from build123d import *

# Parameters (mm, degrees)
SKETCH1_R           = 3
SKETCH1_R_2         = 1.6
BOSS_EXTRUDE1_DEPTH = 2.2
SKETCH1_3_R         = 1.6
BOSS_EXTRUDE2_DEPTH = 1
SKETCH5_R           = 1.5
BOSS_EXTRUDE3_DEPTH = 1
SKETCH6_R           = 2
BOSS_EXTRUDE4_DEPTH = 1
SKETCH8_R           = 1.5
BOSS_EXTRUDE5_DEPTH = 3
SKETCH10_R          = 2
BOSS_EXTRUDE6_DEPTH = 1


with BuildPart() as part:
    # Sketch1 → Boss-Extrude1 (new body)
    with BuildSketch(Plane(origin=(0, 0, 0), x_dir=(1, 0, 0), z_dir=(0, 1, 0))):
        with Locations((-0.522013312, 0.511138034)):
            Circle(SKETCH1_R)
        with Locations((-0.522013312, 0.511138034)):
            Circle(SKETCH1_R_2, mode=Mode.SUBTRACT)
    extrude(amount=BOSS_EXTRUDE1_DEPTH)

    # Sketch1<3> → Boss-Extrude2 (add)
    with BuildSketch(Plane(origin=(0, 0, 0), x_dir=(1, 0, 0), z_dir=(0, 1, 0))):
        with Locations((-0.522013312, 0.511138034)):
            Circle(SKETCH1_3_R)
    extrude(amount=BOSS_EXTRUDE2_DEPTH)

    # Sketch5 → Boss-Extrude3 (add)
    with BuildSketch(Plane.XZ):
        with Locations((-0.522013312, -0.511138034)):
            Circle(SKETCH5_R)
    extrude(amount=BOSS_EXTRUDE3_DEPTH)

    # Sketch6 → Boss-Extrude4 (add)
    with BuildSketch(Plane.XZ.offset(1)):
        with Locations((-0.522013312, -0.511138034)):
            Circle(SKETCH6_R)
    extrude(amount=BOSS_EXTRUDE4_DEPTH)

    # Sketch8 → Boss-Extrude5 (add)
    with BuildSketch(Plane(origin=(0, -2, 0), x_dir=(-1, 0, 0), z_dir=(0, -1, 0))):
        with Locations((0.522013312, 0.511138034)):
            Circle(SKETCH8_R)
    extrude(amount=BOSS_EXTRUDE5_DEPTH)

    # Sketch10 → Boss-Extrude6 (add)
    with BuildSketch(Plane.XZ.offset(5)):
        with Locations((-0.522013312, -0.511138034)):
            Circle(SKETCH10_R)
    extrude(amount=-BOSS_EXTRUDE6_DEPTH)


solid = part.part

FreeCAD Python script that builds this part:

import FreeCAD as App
import Part
import Sketcher

doc = App.newDocument("Part")
body = doc.addObject("PartDesign::Body", "Body")

sketch1 = body.newObject("Sketcher::SketchObject", "Sketch")
sketch1.AttachmentSupport = (doc.getObject("XZ_Plane"), [""])
sketch1.MapMode = "FlatFace"
sketch1.addGeometry([
    Part.Circle(App.Vector(-0.5, -0.5, 0), App.Vector(0, 0, 1), 3),
    Part.Circle(App.Vector(-0.5, -0.5, 0), App.Vector(0, 0, 1), 1.6),
], False)
sketch1.addConstraint([
    Sketcher.Constraint("Coincident", 1, 3, 0, 3),
    Sketcher.Constraint("Diameter", 0, 6.0),
    Sketcher.Constraint("Diameter", 1, 3.2),
    Sketcher.Constraint("DistanceY", 0, 3, -1, 1, 0.511138),
    Sketcher.Constraint("DistanceX", 0, 3, -1, 1, 0.522013),
])
pad1 = body.newObject("PartDesign::Pad", "Pad")
pad1.Profile = sketch1
pad1.Length = 2.2
pad1.Reversed = True

sketch2 = body.newObject("Sketcher::SketchObject", "Sketch001")
sketch2.AttachmentSupport = (doc.getObject("XZ_Plane"), [""])
sketch2.MapMode = "FlatFace"
sketch2.addGeometry(Part.Circle(App.Vector(-0.5, -0.5, 0), App.Vector(0, 0, 1), 1.6), False)
sketch2.addConstraint([
    Sketcher.Constraint("Diameter", 0, 3.2),
    Sketcher.Constraint("DistanceY", 0, 3, -1, 1, 0.511138),
    Sketcher.Constraint("DistanceX", 0, 3, -1, 1, 0.522013),
])
pad2 = body.newObject("PartDesign::Pad", "Pad001")
pad2.Profile = sketch2
pad2.Length = 1
pad2.Reversed = True

sketch3 = body.newObject("Sketcher::SketchObject", "Sketch002")
sketch3.AttachmentSupport = (doc.getObject("XZ_Plane"), [""])
sketch3.MapMode = "FlatFace"
sketch3.addGeometry(Part.Circle(App.Vector(-0.5, -0.5, 0), App.Vector(0, 0, 1), 1.5), False)
sketch3.addConstraint([
    Sketcher.Constraint("Diameter", 0, 3.0),
    Sketcher.Constraint("DistanceY", 0, 3, -1, 1, 0.511138),
    Sketcher.Constraint("DistanceX", 0, 3, -1, 1, 0.522013),
])
pad3 = body.newObject("PartDesign::Pad", "Pad002")
pad3.Profile = sketch3
pad3.Length = 1

sketch4 = body.newObject("Sketcher::SketchObject", "Sketch003")
sketch4.AttachmentSupport = (doc.getObject("XZ_Plane"), [""])
sketch4.MapMode = "FlatFace"
sketch4.AttachmentOffset = App.Placement(App.Vector(0, 0, 1), App.Rotation())
sketch4.addGeometry(Part.Circle(App.Vector(-0.5, -0.5, 0), App.Vector(0, 0, 1), 2), False)
sketch4.addConstraint([
    Sketcher.Constraint("Diameter", 0, 4.0),
    Sketcher.Constraint("DistanceY", 0, 3, -1, 1, 0.511138),
    Sketcher.Constraint("DistanceX", 0, 3, -1, 1, 0.522013),
])
pad4 = body.newObject("PartDesign::Pad", "Pad003")
pad4.Profile = sketch4
pad4.Length = 1

sketch5 = body.newObject("Sketcher::SketchObject", "Sketch004")
sketch5.AttachmentSupport = (doc.getObject("XZ_Plane"), [""])
sketch5.MapMode = "FlatFace"
sketch5.AttachmentOffset = App.Placement(App.Vector(0, 0, 2), App.Rotation())
sketch5.addGeometry(Part.Circle(App.Vector(-0.5, -0.5, 0), App.Vector(0, 0, 1), 1.5), False)
sketch5.addConstraint([
    Sketcher.Constraint("Diameter", 0, 3.0),
    Sketcher.Constraint("DistanceY", 0, 3, -1, 1, 0.511138),
    Sketcher.Constraint("DistanceX", 0, 3, -1, 1, 0.522013),
])
pad5 = body.newObject("PartDesign::Pad", "Pad004")
pad5.Profile = sketch5
pad5.Length = 3

sketch6 = body.newObject("Sketcher::SketchObject", "Sketch005")
sketch6.AttachmentSupport = (doc.getObject("XZ_Plane"), [""])
sketch6.MapMode = "FlatFace"
sketch6.AttachmentOffset = App.Placement(App.Vector(0, 0, 5), App.Rotation())
sketch6.addGeometry(Part.Circle(App.Vector(-0.5, -0.5, 0), App.Vector(0, 0, 1), 2), False)
sketch6.addConstraint([
    Sketcher.Constraint("Diameter", 0, 4.0),
    Sketcher.Constraint("DistanceY", 0, 3, -1, 1, 0.511138),
    Sketcher.Constraint("DistanceX", 0, 3, -1, 1, 0.522013),
])
pad6 = body.newObject("PartDesign::Pad", "Pad005")
pad6.Profile = sketch6
pad6.Length = 1
pad6.Reversed = True

doc.recompute()
